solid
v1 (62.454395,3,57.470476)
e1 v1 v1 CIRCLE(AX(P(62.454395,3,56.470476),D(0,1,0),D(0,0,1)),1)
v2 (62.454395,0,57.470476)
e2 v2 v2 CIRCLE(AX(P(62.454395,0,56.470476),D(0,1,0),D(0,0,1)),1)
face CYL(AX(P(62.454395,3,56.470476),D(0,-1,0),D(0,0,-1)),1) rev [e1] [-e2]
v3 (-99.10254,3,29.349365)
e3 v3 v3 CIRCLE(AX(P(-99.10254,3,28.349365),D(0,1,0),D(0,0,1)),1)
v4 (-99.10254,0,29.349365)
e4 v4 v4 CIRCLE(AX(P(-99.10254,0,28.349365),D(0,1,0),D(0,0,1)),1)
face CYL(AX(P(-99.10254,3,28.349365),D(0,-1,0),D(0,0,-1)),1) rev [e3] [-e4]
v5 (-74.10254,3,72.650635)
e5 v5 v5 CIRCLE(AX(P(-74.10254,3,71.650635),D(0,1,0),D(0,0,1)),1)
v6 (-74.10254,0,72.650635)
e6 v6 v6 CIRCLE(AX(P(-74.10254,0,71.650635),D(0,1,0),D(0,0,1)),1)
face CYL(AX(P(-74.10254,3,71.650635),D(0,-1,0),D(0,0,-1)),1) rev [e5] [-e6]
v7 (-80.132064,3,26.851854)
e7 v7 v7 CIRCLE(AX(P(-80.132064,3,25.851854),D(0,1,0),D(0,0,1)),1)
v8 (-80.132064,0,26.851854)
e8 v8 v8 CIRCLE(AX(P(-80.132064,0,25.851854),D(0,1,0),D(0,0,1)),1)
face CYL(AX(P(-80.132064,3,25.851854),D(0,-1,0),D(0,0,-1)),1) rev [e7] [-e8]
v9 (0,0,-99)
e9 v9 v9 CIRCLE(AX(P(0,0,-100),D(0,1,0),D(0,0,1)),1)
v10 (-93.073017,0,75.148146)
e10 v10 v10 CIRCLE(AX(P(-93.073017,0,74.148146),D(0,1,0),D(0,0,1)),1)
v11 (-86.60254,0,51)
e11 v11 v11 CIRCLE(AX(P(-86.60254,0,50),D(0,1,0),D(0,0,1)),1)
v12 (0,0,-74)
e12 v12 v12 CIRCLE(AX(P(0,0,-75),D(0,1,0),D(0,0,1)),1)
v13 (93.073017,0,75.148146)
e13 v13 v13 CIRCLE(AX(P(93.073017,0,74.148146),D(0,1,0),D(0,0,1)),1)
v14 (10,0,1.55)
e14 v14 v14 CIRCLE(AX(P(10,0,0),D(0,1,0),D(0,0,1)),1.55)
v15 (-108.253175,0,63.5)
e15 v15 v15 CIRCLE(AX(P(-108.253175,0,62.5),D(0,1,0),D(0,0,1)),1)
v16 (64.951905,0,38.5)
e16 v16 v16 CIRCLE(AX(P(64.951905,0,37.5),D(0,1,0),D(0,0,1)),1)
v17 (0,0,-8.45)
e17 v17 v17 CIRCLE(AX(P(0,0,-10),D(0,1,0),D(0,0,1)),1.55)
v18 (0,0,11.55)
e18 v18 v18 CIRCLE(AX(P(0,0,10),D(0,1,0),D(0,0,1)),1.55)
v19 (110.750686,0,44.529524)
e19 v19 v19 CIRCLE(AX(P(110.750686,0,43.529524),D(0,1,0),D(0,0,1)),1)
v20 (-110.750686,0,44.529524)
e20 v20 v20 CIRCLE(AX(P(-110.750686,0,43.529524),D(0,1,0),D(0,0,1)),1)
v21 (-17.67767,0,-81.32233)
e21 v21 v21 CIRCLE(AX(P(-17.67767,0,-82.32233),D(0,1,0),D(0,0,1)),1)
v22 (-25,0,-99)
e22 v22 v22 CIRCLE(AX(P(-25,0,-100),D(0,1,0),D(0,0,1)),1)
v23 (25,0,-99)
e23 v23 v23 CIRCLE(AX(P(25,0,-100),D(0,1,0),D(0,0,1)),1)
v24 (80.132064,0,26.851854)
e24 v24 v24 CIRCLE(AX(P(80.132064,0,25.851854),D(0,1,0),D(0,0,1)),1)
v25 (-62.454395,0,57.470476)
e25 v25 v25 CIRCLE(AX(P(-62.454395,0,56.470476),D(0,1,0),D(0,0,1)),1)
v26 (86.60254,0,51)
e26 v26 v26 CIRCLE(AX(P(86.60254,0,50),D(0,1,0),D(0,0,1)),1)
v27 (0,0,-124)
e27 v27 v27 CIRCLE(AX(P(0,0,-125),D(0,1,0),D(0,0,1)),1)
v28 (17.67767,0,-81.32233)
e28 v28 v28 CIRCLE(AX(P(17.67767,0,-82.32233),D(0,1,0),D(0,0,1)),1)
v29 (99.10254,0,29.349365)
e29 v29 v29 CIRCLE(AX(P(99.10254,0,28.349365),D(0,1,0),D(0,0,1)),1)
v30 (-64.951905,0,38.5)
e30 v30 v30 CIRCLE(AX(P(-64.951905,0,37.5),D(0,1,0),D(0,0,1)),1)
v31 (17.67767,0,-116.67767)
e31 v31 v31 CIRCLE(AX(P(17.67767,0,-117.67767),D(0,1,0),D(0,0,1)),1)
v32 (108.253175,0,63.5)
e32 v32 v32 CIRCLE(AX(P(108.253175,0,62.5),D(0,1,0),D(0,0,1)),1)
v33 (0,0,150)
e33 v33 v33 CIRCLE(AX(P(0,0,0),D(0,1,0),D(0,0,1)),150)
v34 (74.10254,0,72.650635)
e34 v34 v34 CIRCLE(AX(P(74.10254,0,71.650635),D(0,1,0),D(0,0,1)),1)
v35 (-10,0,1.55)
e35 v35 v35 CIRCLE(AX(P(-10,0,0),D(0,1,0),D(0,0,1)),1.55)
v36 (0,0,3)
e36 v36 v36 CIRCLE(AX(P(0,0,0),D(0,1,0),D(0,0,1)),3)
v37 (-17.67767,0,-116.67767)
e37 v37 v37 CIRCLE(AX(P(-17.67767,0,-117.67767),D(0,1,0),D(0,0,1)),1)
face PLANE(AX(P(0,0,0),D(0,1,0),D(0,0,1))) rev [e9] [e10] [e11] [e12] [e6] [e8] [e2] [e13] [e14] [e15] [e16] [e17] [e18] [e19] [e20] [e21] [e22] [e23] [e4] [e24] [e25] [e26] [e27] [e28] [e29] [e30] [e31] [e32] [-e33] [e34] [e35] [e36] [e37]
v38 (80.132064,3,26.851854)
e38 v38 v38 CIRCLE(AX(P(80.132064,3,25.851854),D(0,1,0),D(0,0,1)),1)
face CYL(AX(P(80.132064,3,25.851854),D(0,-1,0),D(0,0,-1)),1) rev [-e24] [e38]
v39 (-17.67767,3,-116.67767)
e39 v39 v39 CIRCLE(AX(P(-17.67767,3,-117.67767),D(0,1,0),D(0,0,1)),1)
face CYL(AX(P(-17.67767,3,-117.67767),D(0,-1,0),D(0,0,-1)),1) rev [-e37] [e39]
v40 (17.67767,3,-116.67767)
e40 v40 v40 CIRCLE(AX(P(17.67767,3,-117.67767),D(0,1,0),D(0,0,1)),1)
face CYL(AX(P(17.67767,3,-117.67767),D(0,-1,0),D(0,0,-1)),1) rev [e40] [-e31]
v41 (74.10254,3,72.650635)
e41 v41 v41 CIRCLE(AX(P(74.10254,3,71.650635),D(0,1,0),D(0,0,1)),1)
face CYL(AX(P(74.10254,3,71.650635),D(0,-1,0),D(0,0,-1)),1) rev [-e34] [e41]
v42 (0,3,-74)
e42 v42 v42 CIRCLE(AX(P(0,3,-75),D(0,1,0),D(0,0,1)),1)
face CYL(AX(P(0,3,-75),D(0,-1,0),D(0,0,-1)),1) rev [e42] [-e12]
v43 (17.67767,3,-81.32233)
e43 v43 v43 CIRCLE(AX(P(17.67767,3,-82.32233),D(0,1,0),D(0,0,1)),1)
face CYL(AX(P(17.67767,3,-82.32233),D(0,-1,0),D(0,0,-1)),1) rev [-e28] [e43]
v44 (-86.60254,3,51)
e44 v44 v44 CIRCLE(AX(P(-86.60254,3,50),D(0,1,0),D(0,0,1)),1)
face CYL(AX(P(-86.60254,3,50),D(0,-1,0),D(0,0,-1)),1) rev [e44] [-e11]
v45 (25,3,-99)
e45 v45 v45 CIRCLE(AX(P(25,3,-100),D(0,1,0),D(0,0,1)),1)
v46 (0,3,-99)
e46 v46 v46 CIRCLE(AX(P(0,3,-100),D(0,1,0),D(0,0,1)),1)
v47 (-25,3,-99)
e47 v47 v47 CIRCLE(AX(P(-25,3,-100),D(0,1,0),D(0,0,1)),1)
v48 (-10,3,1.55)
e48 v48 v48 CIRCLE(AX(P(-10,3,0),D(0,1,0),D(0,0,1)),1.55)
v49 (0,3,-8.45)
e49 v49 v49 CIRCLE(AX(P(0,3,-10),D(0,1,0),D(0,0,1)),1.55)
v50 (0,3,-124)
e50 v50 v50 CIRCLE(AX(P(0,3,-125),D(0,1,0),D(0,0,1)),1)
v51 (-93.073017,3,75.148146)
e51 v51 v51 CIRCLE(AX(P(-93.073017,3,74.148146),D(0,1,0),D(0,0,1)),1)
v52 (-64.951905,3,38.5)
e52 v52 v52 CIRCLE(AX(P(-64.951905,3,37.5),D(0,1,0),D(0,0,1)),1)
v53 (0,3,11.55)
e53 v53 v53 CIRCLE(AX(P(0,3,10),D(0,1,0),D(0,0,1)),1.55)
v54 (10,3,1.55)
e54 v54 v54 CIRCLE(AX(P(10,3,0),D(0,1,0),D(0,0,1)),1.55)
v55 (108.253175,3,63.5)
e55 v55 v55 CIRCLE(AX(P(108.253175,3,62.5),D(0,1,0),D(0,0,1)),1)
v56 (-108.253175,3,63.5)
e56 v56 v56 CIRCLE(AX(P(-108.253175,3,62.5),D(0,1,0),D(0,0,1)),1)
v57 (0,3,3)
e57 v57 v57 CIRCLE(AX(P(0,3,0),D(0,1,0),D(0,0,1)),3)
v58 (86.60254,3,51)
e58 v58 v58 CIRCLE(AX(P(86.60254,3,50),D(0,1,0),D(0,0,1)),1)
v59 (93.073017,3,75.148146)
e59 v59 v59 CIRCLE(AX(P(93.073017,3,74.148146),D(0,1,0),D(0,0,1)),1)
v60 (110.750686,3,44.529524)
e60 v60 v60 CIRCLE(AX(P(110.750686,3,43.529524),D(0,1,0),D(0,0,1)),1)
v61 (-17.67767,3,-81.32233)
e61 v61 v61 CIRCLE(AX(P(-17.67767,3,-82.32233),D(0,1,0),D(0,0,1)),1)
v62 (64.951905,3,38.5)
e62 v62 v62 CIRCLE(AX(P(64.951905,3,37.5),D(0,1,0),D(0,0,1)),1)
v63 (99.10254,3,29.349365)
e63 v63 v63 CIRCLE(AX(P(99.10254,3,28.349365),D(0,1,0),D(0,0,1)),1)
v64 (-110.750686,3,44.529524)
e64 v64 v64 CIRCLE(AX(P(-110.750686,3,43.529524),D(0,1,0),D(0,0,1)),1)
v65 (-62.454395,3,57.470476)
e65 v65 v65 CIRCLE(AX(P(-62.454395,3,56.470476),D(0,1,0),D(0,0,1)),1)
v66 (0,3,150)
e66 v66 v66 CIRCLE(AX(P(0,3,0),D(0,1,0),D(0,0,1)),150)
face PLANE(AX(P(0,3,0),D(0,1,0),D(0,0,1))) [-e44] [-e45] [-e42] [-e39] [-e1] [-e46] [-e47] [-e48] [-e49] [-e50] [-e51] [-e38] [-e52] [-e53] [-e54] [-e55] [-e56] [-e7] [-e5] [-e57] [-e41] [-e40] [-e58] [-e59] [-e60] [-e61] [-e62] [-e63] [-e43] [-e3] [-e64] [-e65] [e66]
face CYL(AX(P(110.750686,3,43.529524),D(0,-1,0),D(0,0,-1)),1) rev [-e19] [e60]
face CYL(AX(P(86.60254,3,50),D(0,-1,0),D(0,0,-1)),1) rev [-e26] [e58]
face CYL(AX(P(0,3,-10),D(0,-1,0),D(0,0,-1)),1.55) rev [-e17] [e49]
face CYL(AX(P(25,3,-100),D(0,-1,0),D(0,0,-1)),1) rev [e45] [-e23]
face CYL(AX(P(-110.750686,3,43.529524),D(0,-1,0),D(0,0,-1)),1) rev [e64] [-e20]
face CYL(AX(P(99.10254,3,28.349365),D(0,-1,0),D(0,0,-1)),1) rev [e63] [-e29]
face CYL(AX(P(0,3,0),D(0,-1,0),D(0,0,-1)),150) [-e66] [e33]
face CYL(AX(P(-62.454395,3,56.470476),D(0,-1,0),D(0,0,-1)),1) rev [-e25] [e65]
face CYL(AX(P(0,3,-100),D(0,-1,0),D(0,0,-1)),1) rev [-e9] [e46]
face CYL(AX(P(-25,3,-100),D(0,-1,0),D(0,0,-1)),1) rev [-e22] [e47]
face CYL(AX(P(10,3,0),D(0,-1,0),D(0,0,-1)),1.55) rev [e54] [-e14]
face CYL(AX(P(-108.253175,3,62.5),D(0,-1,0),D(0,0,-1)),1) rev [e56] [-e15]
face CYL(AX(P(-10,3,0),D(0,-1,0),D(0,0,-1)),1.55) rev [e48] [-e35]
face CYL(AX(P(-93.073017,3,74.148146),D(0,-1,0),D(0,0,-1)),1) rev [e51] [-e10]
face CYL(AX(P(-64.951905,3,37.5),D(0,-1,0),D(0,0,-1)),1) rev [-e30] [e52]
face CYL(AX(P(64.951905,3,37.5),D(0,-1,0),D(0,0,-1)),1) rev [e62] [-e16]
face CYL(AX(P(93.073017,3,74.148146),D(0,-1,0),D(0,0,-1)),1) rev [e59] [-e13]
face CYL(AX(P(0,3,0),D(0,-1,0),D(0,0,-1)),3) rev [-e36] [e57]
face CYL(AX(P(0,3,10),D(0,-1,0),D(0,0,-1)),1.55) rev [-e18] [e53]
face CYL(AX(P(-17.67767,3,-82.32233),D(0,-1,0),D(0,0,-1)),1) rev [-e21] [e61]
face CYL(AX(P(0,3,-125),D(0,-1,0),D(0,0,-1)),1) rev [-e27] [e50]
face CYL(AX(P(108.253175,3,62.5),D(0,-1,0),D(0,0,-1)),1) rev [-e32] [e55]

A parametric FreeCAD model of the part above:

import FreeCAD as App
import Part
import Sketcher

V = App.Vector
Q = App.Units.Quantity

doc = App.newDocument("Part")
body = doc.addObject("PartDesign::Body", "Body")

# Sketch on XZ plane
sketch1 = body.newObject("Sketcher::SketchObject", "Sketch")
sketch1.AttachmentSupport = (doc.getObject("XZ_Plane"), [""])
sketch1.MapMode = "FlatFace"
sketch1.addGeometry([
    Part.Circle(V(0, 0, 0), V(0, 0, 1), 150),  # 0
    Part.Circle(V(-17.7, -117.7, 0), V(0, 0, 1), 1),  # 1
    Part.Circle(V(0, -125, 0), V(0, 0, 1), 1),  # 2
    Part.Circle(V(-25, -100, 0), V(0, 0, 1), 1),  # 3
    Part.Circle(V(-17.7, -82.3, 0), V(0, 0, 1), 1),  # 4
    Part.Circle(V(0, -100, 0), V(0, 0, 1), 1),  # 5
    Part.Circle(V(0, -75, 0), V(0, 0, 1), 1),  # 6
    Part.Circle(V(-99.1, 28.3, 0), V(0, 0, 1), 1),  # 7
    Part.Circle(V(-110.8, 43.5, 0), V(0, 0, 1), 1),  # 8
    Part.Circle(V(-86.6, 50, 0), V(0, 0, 1), 1),  # 9
    Part.Circle(V(-108.3, 62.5, 0), V(0, 0, 1), 1),  # 10
    Part.Circle(V(-93.1, 74.1, 0), V(0, 0, 1), 1),  # 11
    Part.Circle(V(-80.1, 25.9, 0), V(0, 0, 1), 1),  # 12
    Part.Circle(V(-65, 37.5, 0), V(0, 0, 1), 1),  # 13
    Part.Circle(V(-74.1, 71.7, 0), V(0, 0, 1), 1),  # 14
    Part.Circle(V(-62.5, 56.5, 0), V(0, 0, 1), 1),  # 15
    Part.Circle(V(0, -10, 0), V(0, 0, 1), 1.6),  # 16
    Part.Circle(V(-10, 0, 0), V(0, 0, 1), 1.6),  # 17
    Part.Circle(V(0, 0, 0), V(0, 0, 1), 3),  # 18
    Part.Circle(V(0, 10, 0), V(0, 0, 1), 1.6),  # 19
    Part.Circle(V(17.7, -117.7, 0), V(0, 0, 1), 1),  # 20
    Part.Circle(V(25, -100, 0), V(0, 0, 1), 1),  # 21
    Part.Circle(V(17.7, -82.3, 0), V(0, 0, 1), 1),  # 22
    Part.Circle(V(10, 0, 0), V(0, 0, 1), 1.6),  # 23
    Part.Circle(V(65, 37.5, 0), V(0, 0, 1), 1),  # 24
    Part.Circle(V(80.1, 25.9, 0), V(0, 0, 1), 1),  # 25
    Part.Circle(V(62.5, 56.5, 0), V(0, 0, 1), 1),  # 26
    Part.Circle(V(74.1, 71.7, 0), V(0, 0, 1), 1),  # 27
    Part.Circle(V(86.6, 50, 0), V(0, 0, 1), 1),  # 28
    Part.Circle(V(99.1, 28.3, 0), V(0, 0, 1), 1),  # 29
    Part.Circle(V(110.8, 43.5, 0), V(0, 0, 1), 1),  # 30
    Part.Circle(V(93.1, 74.1, 0), V(0, 0, 1), 1),  # 31
    Part.Circle(V(108.3, 62.5, 0), V(0, 0, 1), 1),  # 32
], False)
sketch1.addConstraint([
    Sketcher.Constraint("Coincident", 0, 3, -1, 1),
    Sketcher.Constraint("Coincident", 18, 3, -1, 1),
    Sketcher.Constraint("Equal", 1, 2),
    Sketcher.Constraint("Equal", 2, 3),
    Sketcher.Constraint("Equal", 3, 4),
    Sketcher.Constraint("Equal", 4, 5),
    Sketcher.Constraint("Equal", 5, 6),
    Sketcher.Constraint("Equal", 6, 7),
    Sketcher.Constraint("Equal", 7, 8),
    Sketcher.Constraint("Equal", 8, 9),
    Sketcher.Constraint("Equal", 9, 10),
    Sketcher.Constraint("Equal", 10, 11),
    Sketcher.Constraint("Equal", 11, 12),
    Sketcher.Constraint("Equal", 12, 13),
    Sketcher.Constraint("Equal", 13, 14),
    Sketcher.Constraint("Equal", 14, 15),
    Sketcher.Constraint("Equal", 16, 17),
    Sketcher.Constraint("Equal", 17, 19),
    Sketcher.Constraint("Equal", 15, 20),
    Sketcher.Constraint("Equal", 20, 21),
    Sketcher.Constraint("Equal", 21, 22),
    Sketcher.Constraint("Equal", 19, 23),
    Sketcher.Constraint("Equal", 22, 24),
    Sketcher.Constraint("Equal", 24, 25),
    Sketcher.Constraint("Equal", 25, 26),
    Sketcher.Constraint("Equal", 26, 27),
    Sketcher.Constraint("Equal", 27, 28),
    Sketcher.Constraint("Equal", 28, 29),
    Sketcher.Constraint("Equal", 29, 30),
    Sketcher.Constraint("Equal", 30, 31),
    Sketcher.Constraint("Equal", 31, 32),
    Sketcher.Constraint("Symmetric", 16, 3, 19, 3, -1, 1),
    Sketcher.Constraint("Symmetric", 17, 3, 23, 3, -1, 1),
    Sketcher.Constraint("Symmetric", 1, 3, 20, 3, -2),
    Sketcher.Constraint("Symmetric", 3, 3, 21, 3, -2),
    Sketcher.Constraint("Symmetric", 4, 3, 22, 3, -2),
    Sketcher.Constraint("Symmetric", 13, 3, 24, 3, -2),
    Sketcher.Constraint("Symmetric", 12, 3, 25, 3, -2),
    Sketcher.Constraint("Symmetric", 15, 3, 26, 3, -2),
    Sketcher.Constraint("Symmetric", 14, 3, 27, 3, -2),
    Sketcher.Constraint("Symmetric", 9, 3, 28, 3, -2),
    Sketcher.Constraint("Symmetric", 7, 3, 29, 3, -2),
    Sketcher.Constraint("Symmetric", 8, 3, 30, 3, -2),
    Sketcher.Constraint("Symmetric", 11, 3, 31, 3, -2),
    Sketcher.Constraint("Symmetric", 10, 3, 32, 3, -2),
    Sketcher.Constraint("PointOnObject", 2, 3, -2),
    Sketcher.Constraint("PointOnObject", 5, 3, -2),
    Sketcher.Constraint("PointOnObject", 6, 3, -2),
    Sketcher.Constraint("PointOnObject", 16, 3, -2),
    Sketcher.Constraint("PointOnObject", 17, 3, -1),
    Sketcher.Constraint("Horizontal", 3, 3, 5, 3),
    Sketcher.Constraint("Vertical", 1, 3, 4, 3),
    Sketcher.Constraint("Diameter", 0, Q("300 mm")),
    Sketcher.Constraint("Diameter", 1, Q("2 mm")),
    Sketcher.Constraint("Diameter", 18, Q("6 mm")),
    Sketcher.Constraint("Diameter", 16, Q("3.1 mm")),
    Sketcher.Constraint("DistanceY", 2, 3, -1, 1, Q("125 mm")),
    Sketcher.Constraint("DistanceX", 3, 3, -1, 1, Q("25 mm")),
    Sketcher.Constraint("DistanceY", 3, 3, -1, 1, Q("100 mm")),
    Sketcher.Constraint("DistanceY", 6, 3, -1, 1, Q("75 mm")),
    Sketcher.Constraint("DistanceY", -1, 1, 9, 3, Q("50 mm")),
    Sketcher.Constraint("DistanceY", 16, 3, -1, 1, Q("10 mm")),
    Sketcher.Constraint("DistanceX", 17, 3, -1, 1, Q("10 mm")),
    Sketcher.Constraint("DistanceX", 27, 3, 29, 3, Q("25 mm")),
    Sketcher.Constraint("DistanceY", -1, 1, 10, 3, Q("62.5 mm")),
    Sketcher.Constraint("DistanceY", -1, 1, 13, 3, Q("37.5 mm")),
    Sketcher.Constraint("DistanceX", 7, 3, 9, 3, Q("12.5 mm")),
    Sketcher.Constraint("DistanceX", 1, 3, -1, 1, Q("17.67767 mm")),
    Sketcher.Constraint("DistanceY", 1, 3, -1, 1, Q("117.67767 mm")),
    Sketcher.Constraint("DistanceY", 4, 3, -1, 1, Q("82.32233 mm")),
    Sketcher.Constraint("DistanceX", 7, 3, -1, 1, Q("99.10254 mm")),
    Sketcher.Constraint("DistanceY", 7, 3, 8, 3, Q("15.180159 mm")),
    Sketcher.Constraint("DistanceX", 8, 3, 10, 3, Q("2.497511 mm")),
    Sketcher.Constraint("DistanceX", 10, 3, 11, 3, Q("15.180159 mm")),
    Sketcher.Constraint("DistanceY", 8, 3, 11, 3, Q("30.618622 mm")),
    Sketcher.Constraint("DistanceY", 12, 3, 7, 3, Q("2.497511 mm")),
    Sketcher.Constraint("DistanceX", 8, 3, 12, 3, Q("30.618622 mm")),
    Sketcher.Constraint("DistanceX", 12, 3, 13, 3, Q("15.180159 mm")),
    Sketcher.Constraint("DistanceY", 14, 3, 11, 3, Q("2.497511 mm")),
    Sketcher.Constraint("DistanceY", 15, 3, 14, 3, Q("15.180159 mm")),
    Sketcher.Constraint("DistanceX", 13, 3, 15, 3, Q("2.497511 mm")),
    Sketcher.Constraint("DistanceY", -1, 1, 7, 3, Q("28.349365 mm")),
    Sketcher.Constraint("DistanceX", 8, 3, -1, 1, Q("110.750686 mm")),
])
pad1 = body.newObject("PartDesign::Pad", "Pad")
pad1.Profile = sketch1
pad1.Length = 3
pad1.Reversed = True

doc.recompute()
